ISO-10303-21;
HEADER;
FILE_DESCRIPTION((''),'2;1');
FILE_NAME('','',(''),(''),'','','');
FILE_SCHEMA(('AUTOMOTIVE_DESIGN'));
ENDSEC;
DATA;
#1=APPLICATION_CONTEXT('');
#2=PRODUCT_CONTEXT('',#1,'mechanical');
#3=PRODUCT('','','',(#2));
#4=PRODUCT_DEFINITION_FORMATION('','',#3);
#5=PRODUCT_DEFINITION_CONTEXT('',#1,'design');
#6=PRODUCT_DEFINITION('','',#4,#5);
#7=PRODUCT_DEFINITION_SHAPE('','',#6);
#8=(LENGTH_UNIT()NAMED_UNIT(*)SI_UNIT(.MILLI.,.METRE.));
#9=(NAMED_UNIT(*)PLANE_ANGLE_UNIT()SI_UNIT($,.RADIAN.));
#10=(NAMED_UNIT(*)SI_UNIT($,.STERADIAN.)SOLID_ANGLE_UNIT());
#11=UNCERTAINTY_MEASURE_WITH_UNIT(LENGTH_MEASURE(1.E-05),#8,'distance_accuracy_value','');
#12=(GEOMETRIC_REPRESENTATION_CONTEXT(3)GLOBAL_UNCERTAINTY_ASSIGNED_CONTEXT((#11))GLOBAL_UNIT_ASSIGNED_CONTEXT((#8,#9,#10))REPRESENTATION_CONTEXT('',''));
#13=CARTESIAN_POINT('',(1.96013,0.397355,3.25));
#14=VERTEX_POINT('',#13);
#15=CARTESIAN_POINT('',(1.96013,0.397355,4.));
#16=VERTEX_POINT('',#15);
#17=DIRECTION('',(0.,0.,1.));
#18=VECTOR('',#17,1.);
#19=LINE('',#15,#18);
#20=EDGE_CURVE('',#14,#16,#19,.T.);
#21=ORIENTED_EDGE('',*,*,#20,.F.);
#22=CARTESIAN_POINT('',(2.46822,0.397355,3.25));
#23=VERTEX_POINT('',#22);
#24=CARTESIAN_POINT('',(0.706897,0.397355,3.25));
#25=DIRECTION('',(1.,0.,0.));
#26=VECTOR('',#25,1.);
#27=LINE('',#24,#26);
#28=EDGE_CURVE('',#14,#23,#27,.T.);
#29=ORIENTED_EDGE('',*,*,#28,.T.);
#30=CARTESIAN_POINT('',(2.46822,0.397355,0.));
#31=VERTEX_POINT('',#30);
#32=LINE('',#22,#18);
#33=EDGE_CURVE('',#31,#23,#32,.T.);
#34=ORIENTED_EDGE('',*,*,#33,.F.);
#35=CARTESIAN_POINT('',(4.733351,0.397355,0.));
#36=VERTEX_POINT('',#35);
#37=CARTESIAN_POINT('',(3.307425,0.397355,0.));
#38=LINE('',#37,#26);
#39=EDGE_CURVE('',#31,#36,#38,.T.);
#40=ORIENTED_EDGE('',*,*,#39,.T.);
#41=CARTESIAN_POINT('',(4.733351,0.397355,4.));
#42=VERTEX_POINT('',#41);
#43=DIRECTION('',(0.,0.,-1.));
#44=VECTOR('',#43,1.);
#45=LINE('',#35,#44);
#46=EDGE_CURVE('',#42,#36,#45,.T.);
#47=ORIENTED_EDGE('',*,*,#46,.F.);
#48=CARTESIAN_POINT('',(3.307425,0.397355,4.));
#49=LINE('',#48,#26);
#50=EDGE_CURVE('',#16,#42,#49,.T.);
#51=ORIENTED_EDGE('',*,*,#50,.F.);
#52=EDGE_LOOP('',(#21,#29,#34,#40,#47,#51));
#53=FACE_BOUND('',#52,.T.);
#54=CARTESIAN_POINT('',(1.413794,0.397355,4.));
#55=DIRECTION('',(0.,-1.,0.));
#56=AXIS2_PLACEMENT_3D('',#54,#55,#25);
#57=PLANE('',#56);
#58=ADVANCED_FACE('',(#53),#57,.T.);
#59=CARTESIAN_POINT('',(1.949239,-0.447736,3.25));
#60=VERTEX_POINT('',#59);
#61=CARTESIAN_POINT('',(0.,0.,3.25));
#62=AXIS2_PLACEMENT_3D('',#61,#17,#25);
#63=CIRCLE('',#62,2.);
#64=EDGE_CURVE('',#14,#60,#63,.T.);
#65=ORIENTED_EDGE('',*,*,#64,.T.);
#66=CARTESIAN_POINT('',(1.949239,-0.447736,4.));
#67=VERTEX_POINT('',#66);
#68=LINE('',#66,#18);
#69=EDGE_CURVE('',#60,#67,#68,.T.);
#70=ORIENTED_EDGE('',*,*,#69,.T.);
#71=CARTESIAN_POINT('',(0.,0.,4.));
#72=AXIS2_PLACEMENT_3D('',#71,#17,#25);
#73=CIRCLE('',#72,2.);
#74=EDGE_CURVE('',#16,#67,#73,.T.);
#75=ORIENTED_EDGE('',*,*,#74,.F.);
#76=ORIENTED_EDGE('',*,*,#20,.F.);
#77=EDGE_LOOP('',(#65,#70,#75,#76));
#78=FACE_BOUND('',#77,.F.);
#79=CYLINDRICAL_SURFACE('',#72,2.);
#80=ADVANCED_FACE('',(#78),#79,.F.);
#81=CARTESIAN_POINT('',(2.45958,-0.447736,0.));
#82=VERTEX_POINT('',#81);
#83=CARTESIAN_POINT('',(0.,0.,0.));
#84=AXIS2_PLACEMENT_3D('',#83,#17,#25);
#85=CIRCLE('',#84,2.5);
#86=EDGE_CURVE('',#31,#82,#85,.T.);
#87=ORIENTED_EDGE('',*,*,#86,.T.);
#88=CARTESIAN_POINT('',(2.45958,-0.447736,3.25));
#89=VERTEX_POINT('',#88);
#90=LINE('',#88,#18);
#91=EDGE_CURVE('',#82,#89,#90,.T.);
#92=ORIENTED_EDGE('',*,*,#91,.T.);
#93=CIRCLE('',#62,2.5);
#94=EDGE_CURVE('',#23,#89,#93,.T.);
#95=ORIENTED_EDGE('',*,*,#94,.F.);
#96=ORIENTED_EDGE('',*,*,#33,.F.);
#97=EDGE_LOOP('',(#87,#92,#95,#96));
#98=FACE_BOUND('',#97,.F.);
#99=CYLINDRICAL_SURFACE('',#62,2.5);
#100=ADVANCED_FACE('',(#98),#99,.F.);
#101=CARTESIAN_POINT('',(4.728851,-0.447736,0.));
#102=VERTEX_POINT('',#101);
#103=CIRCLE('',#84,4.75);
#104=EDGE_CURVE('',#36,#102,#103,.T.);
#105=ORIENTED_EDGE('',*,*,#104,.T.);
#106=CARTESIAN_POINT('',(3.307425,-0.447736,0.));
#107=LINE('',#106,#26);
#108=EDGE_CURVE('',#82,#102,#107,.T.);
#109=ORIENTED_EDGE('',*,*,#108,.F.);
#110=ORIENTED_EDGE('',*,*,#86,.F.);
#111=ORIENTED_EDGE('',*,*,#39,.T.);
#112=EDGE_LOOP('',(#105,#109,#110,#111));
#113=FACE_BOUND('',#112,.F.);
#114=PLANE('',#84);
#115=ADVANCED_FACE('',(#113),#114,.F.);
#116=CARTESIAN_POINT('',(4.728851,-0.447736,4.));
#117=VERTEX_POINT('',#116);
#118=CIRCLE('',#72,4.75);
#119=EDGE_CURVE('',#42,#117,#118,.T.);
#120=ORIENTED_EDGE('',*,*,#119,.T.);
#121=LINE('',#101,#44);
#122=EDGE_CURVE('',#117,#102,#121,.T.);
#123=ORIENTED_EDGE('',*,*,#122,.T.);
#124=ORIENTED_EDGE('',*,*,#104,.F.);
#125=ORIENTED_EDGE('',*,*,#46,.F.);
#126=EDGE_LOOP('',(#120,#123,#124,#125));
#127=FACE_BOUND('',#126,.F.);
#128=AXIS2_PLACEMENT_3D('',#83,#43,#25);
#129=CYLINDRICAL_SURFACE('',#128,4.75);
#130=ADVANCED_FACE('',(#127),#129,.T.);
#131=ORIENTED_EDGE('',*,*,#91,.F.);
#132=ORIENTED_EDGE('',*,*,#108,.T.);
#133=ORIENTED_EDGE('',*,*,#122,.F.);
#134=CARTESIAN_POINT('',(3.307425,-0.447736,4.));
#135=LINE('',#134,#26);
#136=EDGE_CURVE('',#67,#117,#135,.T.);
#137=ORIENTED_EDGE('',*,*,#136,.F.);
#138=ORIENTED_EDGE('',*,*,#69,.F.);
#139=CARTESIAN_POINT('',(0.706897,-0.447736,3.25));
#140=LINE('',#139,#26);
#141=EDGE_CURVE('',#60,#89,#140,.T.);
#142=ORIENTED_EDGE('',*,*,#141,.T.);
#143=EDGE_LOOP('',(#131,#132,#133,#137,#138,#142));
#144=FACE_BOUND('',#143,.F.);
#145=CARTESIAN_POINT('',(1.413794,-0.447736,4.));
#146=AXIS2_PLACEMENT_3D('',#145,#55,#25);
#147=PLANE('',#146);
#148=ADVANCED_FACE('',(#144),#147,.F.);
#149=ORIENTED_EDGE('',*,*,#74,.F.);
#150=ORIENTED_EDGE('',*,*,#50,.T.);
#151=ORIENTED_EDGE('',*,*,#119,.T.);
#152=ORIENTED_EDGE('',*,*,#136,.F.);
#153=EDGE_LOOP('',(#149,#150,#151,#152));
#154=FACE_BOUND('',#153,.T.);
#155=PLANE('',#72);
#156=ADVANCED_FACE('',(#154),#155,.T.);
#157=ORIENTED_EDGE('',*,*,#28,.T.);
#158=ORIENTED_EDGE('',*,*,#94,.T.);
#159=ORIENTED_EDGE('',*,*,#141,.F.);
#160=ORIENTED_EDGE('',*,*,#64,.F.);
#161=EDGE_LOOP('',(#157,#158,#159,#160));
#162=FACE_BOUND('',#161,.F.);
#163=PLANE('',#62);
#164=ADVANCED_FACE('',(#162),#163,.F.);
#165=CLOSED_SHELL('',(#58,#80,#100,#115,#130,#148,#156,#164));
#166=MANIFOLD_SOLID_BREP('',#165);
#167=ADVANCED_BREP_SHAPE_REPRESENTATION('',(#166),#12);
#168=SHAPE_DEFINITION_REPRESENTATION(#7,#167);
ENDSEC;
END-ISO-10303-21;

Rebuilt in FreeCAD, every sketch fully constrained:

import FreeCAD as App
import Part
import Sketcher
from FreeCAD import Vector


def add_polygon(sketch, points):
    """Adds a closed chain of lines whose ends are joined by coincident constraints."""
    first, n = sketch.GeometryCount, len(points)
    for a, b in zip(points, points[1:] + points[:1]):
        sketch.addGeometry(Part.LineSegment(App.Vector(*a, 0), App.Vector(*b, 0)), False)
    for i in range(n):
        sketch.addConstraint(Sketcher.Constraint("Coincident", first + i, 2, first + (i + 1) % n, 1))

doc = App.newDocument("Part")
body = doc.addObject("PartDesign::Body", "Body")

sketch1 = body.newObject("Sketcher::SketchObject", "Sketch")
sketch1.AttachmentSupport = (doc.getObject("XY_Plane"), [""])
sketch1.MapMode = "FlatFace"
sketch1.addGeometry(Part.Circle(Vector(0, 0, 0), Vector(0, 0, 1), 4.8), False)
sketch1.addConstraint([
    Sketcher.Constraint("Coincident", 0, 3, -1, 1),
    Sketcher.Constraint("Diameter", 0, 9.5),
])
pad1 = body.newObject("PartDesign::Pad", "Pad")
pad1.Profile = sketch1
pad1.Length = 4

sketch2 = body.newObject("Sketcher::SketchObject", "Sketch001")
sketch2.AttachmentSupport = (doc.getObject("XY_Plane"), [""])
sketch2.MapMode = "FlatFace"
sketch2.AttachmentOffset = App.Placement(Vector(0, 0, 4), App.Rotation())
sketch2.addGeometry(Part.Circle(Vector(0, 0, 0), Vector(0, 0, 1), 2), False)
sketch2.addConstraint([
    Sketcher.Constraint("Coincident", 0, 3, -1, 1),
    Sketcher.Constraint("Diameter", 0, 4.0),
])
pocket1 = body.newObject("PartDesign::Pocket", "Pocket")
pocket1.Profile = sketch2
pocket1.Length = 4

sketch3 = body.newObject("Sketcher::SketchObject", "Sketch002")
sketch3.AttachmentSupport = (doc.getObject("XY_Plane"), [""])
sketch3.MapMode = "FlatFace"
sketch3.AttachmentOffset = App.Placement(Vector(0, 0, 3.25), App.Rotation())
sketch3.addGeometry(Part.Circle(Vector(0, 0, 0), Vector(0, 0, 1), 2.5), False)
sketch3.addConstraint([
    Sketcher.Constraint("Coincident", 0, 3, -1, 1),
    Sketcher.Constraint("Diameter", 0, 5.0),
])
pocket2 = body.newObject("PartDesign::Pocket", "Pocket001")
pocket2.Profile = sketch3
pocket2.Length = 3.25

sketch4 = body.newObject("Sketcher::SketchObject", "Sketch003")
sketch4.AttachmentSupport = (doc.getObject("XY_Plane"), [""])
sketch4.MapMode = "FlatFace"
sketch4.AttachmentOffset = App.Placement(Vector(0, 0, 4), App.Rotation())
add_polygon(sketch4, [(1.4, 0.4), (1.4, -0.4), (5.2, -0.4), (5.2, 0.4)])
sketch4.addConstraint([
    Sketcher.Constraint("Vertical", 0),
    Sketcher.Constraint("Horizontal", 1),
    Sketcher.Constraint("Vertical", 2),
    Sketcher.Constraint("Horizontal", 3),
    Sketcher.Constraint("DistanceX", 1, 1, 1, 2, 3.787262),
    Sketcher.Constraint("DistanceY", 0, 2, 0, 1, 0.845091),
    Sketcher.Constraint("DistanceX", -1, 1, 0, 2, 1.413794),
    Sketcher.Constraint("DistanceY", 0, 2, -1, 1, 0.447736),
])
pocket3 = body.newObject("PartDesign::Pocket", "Pocket002")
pocket3.Profile = sketch4
pocket3.Length = 4

doc.recompute()
